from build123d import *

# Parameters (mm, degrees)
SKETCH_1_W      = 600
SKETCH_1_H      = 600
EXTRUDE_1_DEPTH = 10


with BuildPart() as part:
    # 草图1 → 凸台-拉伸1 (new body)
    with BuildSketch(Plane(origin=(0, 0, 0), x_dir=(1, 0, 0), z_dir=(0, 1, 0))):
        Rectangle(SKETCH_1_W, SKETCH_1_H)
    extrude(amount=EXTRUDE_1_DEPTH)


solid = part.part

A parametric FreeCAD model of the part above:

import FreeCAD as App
import Part
import Sketcher

V = App.Vector
Q = App.Units.Quantity


def add_polygon(sketch, points):
    """Adds a closed chain of lines whose ends are joined by coincident constraints."""
    first, n = sketch.GeometryCount, len(points)
    for a, b in zip(points, points[1:] + points[:1]):
        sketch.addGeometry(Part.LineSegment(App.Vector(*a, 0), App.Vector(*b, 0)), False)
    for i in range(n):
        sketch.addConstraint(Sketcher.Constraint("Coincident", first + i, 2, first + (i + 1) % n, 1))

doc = App.newDocument("Part")
body = doc.addObject("PartDesign::Body", "Body")

sketch1 = body.newObject("Sketcher::SketchObject", "Sketch")
sketch1.AttachmentSupport = (doc.getObject("XZ_Plane"), [""])
sketch1.MapMode = "FlatFace"
add_polygon(sketch1, [(-300, -300), (-300, 300), (300, 300), (300, -300)])
sketch1.addConstraint(Sketcher.Constraint("Vertical", 0))
sketch1.addConstraint(Sketcher.Constraint("Horizontal", 1))
sketch1.addConstraint(Sketcher.Constraint("Vertical", 2))
sketch1.addConstraint(Sketcher.Constraint("Horizontal", 3))
sketch1.addConstraint(Sketcher.Constraint("Symmetric", 0, 2, 2, 2, -1, 1))
sketch1.addConstraint(Sketcher.Constraint("Equal", 3, 0))
sketch1.addConstraint(Sketcher.Constraint("DistanceX", 1, 1, 1, 2, Q("600 mm")))
pad1 = body.newObject("PartDesign::Pad", "Pad")
pad1.Profile = sketch1
pad1.Length = 10
pad1.Reversed = True

doc.recompute()
